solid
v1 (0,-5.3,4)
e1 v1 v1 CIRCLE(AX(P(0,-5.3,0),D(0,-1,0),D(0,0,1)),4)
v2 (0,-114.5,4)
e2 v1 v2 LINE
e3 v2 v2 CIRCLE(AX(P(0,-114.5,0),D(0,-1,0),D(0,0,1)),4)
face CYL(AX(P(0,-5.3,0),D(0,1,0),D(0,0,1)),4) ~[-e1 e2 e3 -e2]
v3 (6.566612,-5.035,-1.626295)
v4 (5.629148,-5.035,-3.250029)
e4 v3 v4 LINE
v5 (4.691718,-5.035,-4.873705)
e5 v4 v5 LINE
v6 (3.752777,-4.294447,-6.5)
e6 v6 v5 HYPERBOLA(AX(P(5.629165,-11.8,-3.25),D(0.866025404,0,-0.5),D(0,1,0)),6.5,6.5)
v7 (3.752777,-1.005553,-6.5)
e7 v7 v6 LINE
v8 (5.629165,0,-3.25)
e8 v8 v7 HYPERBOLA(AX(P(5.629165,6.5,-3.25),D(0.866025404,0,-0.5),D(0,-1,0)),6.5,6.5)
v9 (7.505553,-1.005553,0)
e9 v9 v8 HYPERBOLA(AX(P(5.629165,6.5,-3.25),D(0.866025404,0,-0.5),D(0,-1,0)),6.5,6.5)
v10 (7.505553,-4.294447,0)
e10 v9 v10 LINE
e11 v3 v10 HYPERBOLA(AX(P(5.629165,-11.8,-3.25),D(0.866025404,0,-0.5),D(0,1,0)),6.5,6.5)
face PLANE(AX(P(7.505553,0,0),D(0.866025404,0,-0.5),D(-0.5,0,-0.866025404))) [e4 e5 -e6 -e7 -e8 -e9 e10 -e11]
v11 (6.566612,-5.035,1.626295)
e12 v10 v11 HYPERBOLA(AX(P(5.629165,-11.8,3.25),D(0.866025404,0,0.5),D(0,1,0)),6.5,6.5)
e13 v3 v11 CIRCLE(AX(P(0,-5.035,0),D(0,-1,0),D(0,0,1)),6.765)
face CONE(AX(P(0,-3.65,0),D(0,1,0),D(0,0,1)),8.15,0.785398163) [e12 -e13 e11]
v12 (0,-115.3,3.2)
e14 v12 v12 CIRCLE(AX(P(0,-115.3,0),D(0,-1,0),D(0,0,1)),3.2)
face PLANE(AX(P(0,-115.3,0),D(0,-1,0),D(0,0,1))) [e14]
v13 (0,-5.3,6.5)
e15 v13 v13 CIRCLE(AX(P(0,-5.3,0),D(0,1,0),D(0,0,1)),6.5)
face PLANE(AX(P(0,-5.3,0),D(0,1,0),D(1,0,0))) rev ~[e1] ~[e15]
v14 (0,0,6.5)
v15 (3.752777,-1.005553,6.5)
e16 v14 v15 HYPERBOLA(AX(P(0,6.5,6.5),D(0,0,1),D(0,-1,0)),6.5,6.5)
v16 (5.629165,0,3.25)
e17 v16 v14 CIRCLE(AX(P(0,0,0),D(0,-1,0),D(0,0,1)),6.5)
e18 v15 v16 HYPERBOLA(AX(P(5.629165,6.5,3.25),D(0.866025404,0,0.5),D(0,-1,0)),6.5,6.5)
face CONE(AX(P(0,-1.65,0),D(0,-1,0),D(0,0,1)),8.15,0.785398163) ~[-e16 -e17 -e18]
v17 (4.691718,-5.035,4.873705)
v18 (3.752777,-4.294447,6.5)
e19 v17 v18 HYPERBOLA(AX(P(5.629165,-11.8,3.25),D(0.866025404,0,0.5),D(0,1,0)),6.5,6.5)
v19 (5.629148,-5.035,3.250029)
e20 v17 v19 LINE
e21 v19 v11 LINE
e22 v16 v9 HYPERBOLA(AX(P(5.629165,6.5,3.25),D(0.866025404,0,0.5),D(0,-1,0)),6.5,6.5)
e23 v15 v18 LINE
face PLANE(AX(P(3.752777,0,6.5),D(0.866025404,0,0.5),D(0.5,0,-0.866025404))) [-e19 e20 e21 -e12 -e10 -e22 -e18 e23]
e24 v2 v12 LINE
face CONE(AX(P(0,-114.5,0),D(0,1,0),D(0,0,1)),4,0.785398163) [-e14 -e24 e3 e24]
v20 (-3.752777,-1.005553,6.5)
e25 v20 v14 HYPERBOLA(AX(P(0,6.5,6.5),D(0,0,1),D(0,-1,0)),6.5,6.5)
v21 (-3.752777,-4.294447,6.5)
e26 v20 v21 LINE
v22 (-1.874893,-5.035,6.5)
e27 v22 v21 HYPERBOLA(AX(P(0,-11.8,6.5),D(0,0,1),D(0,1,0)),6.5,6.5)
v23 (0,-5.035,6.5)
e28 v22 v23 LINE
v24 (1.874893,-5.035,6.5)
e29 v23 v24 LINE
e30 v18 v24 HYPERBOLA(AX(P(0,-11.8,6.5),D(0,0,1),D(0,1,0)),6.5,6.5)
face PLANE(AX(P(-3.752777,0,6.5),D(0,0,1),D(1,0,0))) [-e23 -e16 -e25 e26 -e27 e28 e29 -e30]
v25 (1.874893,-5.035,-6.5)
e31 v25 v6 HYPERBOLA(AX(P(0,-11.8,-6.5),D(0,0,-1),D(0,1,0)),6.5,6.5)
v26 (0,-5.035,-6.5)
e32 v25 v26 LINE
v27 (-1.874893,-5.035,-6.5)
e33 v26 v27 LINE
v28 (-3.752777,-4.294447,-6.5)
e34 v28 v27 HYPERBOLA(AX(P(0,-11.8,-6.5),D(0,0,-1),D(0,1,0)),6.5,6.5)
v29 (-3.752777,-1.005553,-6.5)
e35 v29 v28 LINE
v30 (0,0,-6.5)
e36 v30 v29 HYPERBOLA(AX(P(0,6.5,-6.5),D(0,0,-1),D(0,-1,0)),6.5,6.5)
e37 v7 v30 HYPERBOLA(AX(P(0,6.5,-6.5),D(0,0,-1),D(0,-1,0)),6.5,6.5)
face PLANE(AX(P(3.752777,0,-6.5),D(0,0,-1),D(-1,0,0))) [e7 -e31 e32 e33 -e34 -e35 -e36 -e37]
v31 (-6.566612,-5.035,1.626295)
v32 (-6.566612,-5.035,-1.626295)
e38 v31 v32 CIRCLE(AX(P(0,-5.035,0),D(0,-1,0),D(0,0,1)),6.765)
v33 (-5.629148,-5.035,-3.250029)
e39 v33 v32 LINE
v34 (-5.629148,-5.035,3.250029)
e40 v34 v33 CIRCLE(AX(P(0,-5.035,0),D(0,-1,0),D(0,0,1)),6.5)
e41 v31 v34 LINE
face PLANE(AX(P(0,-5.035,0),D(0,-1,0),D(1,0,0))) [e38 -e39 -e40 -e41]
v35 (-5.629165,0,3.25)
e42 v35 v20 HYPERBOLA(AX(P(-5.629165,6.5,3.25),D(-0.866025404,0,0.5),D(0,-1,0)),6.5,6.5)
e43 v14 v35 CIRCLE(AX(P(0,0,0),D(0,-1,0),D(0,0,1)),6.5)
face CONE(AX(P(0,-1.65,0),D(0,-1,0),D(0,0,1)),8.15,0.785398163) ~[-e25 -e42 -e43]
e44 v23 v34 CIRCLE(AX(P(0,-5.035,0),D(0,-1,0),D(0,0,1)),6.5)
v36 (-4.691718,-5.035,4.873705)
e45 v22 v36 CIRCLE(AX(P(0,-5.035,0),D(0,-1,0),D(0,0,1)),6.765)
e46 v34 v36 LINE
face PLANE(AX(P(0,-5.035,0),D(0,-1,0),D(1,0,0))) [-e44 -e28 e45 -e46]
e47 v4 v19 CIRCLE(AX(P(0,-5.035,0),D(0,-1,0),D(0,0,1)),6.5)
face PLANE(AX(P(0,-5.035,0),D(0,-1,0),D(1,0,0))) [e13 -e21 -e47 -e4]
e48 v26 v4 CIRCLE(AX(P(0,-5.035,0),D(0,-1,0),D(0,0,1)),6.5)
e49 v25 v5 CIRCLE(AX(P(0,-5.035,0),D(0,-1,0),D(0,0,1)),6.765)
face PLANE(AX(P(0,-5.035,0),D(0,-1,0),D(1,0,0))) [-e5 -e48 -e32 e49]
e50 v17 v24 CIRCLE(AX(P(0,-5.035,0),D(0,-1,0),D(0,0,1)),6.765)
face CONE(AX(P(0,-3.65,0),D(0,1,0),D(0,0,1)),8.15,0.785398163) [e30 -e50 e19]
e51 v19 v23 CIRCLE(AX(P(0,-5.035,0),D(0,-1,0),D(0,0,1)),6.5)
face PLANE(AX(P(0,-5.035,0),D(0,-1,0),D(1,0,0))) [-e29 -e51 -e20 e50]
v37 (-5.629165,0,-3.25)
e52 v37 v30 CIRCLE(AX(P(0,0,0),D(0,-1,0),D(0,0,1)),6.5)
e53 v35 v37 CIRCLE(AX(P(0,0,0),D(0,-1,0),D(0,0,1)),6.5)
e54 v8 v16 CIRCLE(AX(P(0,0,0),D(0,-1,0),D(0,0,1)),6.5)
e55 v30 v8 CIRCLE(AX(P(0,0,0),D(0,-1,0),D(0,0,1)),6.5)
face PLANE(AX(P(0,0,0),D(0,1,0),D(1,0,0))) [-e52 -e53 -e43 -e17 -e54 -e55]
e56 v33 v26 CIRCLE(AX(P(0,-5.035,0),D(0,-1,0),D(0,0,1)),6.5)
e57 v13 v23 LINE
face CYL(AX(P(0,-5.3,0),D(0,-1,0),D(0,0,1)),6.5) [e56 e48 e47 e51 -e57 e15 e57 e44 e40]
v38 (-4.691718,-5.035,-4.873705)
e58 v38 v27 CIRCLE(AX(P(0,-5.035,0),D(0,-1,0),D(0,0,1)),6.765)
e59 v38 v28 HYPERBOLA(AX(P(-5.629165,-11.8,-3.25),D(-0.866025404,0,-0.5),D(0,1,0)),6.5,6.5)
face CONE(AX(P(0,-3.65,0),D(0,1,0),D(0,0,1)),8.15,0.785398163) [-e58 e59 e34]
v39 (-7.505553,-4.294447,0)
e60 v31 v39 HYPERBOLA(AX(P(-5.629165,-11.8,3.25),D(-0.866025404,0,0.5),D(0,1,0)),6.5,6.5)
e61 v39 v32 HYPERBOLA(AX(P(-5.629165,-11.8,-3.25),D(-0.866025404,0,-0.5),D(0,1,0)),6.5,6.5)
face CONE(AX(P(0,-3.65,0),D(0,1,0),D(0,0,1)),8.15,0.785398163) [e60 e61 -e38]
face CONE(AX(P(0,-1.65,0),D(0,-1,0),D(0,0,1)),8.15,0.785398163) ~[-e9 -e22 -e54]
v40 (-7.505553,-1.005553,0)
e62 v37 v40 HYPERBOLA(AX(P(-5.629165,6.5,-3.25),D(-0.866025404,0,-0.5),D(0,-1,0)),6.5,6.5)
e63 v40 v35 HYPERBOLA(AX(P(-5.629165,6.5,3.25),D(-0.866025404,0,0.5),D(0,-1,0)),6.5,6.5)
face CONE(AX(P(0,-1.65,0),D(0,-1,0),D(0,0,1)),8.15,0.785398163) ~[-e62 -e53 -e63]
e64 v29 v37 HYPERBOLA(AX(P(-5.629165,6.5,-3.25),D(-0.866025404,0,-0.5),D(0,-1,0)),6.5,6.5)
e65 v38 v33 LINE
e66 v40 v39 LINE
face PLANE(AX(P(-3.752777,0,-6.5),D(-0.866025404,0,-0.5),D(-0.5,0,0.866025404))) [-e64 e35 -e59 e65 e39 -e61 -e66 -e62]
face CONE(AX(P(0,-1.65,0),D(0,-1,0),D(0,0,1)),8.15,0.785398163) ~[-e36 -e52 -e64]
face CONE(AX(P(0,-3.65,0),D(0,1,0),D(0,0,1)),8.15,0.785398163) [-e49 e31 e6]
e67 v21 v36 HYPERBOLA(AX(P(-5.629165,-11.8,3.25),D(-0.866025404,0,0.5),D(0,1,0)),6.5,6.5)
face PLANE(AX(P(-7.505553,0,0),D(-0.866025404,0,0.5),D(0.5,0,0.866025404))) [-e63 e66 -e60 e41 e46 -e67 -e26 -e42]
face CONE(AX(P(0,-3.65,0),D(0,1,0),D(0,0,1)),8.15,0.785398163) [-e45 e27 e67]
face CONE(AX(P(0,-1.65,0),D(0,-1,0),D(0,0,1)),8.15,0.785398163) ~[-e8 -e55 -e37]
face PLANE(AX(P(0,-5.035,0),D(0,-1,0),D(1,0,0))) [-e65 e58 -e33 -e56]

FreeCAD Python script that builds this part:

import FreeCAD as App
import Part
import Sketcher
Q = App.Units.Quantity


def edges_at(feature, points):
    """Names of the edges that pass closest to the given points."""
    edges = feature.Shape.Edges
    near = lambda p: min(range(len(edges)), key=lambda i: edges[i].distToShape(Part.Vertex(*p))[0])
    return sorted({f"Edge{near(p) + 1}" for p in points})

doc = App.newDocument("Part")
body = doc.addObject("PartDesign::Body", "Body")

sketch1 = body.newObject("Sketcher::SketchObject", "Sketch")
sketch1.AttachmentSupport = (doc.getObject("XZ_Plane"), [""])
sketch1.MapMode = "FlatFace"
sketch1.addGeometry([
    Part.LineSegment(App.Vector(8, 0, 0), App.Vector(4, -6, 0)),
    Part.LineSegment(App.Vector(4, -6, 0), App.Vector(-4, -6, 0)),
    Part.LineSegment(App.Vector(-4, -6, 0), App.Vector(-8, 0, 0)),
    Part.LineSegment(App.Vector(-8, 0, 0), App.Vector(-4, 6, 0)),
    Part.LineSegment(App.Vector(-4, 6, 0), App.Vector(4, 6, 0)),
    Part.LineSegment(App.Vector(4, 6, 0), App.Vector(8, 0, 0)),
], False)
sketch1.addConstraint([
    Sketcher.Constraint("Coincident", 0, 2, 1, 1),
    Sketcher.Constraint("Coincident", 1, 2, 2, 1),
    Sketcher.Constraint("Coincident", 2, 2, 3, 1),
    Sketcher.Constraint("Coincident", 3, 2, 4, 1),
    Sketcher.Constraint("Coincident", 4, 2, 5, 1),
    Sketcher.Constraint("Coincident", 5, 2, 0, 1),
    Sketcher.Constraint("Horizontal", 1),
    Sketcher.Constraint("Horizontal", 4),
    Sketcher.Constraint("Symmetric", 0, 2, 3, 2, -1, 1),
    Sketcher.Constraint("Symmetric", 2, 2, 5, 2, -1, 1),
    Sketcher.Constraint("PointOnObject", 2, 2, -1),
    Sketcher.Constraint("Parallel", 2, 5),
    Sketcher.Constraint("Vertical", 1, 2, 3, 2),
    Sketcher.Constraint("Angle", 0, Q("-120 deg")),
    Sketcher.Constraint("DistanceY", 1, 2, 3, 2, Q("13 mm")),
    Sketcher.Constraint("DistanceX", 1, 2, 1, 1, Q("7.505554 mm")),
])
pad1 = body.newObject("PartDesign::Pad", "Pad")
pad1.Profile = sketch1
pad1.Length = 5.3

sketch2 = body.newObject("Sketcher::SketchObject", "Sketch001")
sketch2.AttachmentSupport = (doc.getObject("YZ_Plane"), [""])
sketch2.MapMode = "FlatFace"
sketch2.addGeometry([
    Part.LineSegment(App.Vector(0, 6.5, 0), App.Vector(0, 8.2, 0)),
    Part.LineSegment(App.Vector(0, 8.2, 0), App.Vector(-1.6, 8.2, 0)),
    Part.LineSegment(App.Vector(-1.6, 8.2, 0), App.Vector(0, 6.5, 0)),
    Part.LineSegment(App.Vector(-5.3, 6.5, 0), App.Vector(-3.6, 8.2, 0)),
    Part.LineSegment(App.Vector(-3.6, 8.2, 0), App.Vector(-5.3, 8.2, 0)),
    Part.LineSegment(App.Vector(-5.3, 8.2, 0), App.Vector(-5.3, 6.5, 0)),
], False)
sketch2.addConstraint([
    Sketcher.Constraint("Coincident", 0, 2, 1, 1),
    Sketcher.Constraint("Coincident", 1, 2, 2, 1),
    Sketcher.Constraint("Coincident", 2, 2, 0, 1),
    Sketcher.Constraint("Coincident", 3, 2, 4, 1),
    Sketcher.Constraint("Coincident", 4, 2, 5, 1),
    Sketcher.Constraint("Coincident", 5, 2, 3, 1),
    Sketcher.Constraint("Vertical", 0),
    Sketcher.Constraint("Horizontal", 1),
    Sketcher.Constraint("Horizontal", 4),
    Sketcher.Constraint("Vertical", 5),
    Sketcher.Constraint("PointOnObject", 0, 2, -2),
    Sketcher.Constraint("Perpendicular", 2, 3),
    Sketcher.Constraint("Horizontal", 1, 2, 3, 2),
    Sketcher.Constraint("Horizontal", 2, 2, 5, 2),
    Sketcher.Constraint("Equal", 1, 4),
    Sketcher.Constraint("DistanceX", 3, 2, 1, 2, Q("2 mm")),
    Sketcher.Constraint("DistanceX", 1, 2, 1, 1, Q("1.65 mm")),
    Sketcher.Constraint("DistanceY", -1, 1, 2, 2, Q("6.5 mm")),
])
groove = body.newObject("PartDesign::Groove", "Groove")
groove.Profile = sketch2
groove.ReferenceAxis = (sketch2, ["H_Axis"])
groove.Angle = 360

sketch3 = body.newObject("Sketcher::SketchObject", "Sketch002")
sketch3.AttachmentSupport = (doc.getObject("XZ_Plane"), [""])
sketch3.MapMode = "FlatFace"
sketch3.AttachmentOffset = App.Placement(App.Vector(0, 0, 5.3), App.Rotation())
sketch3.addGeometry([
    Part.LineSegment(App.Vector(-11, 10, 0), App.Vector(-11, -10, 0)),
    Part.LineSegment(App.Vector(-11, -10, 0), App.Vector(11, -10, 0)),
    Part.LineSegment(App.Vector(11, -10, 0), App.Vector(11, 10, 0)),
    Part.LineSegment(App.Vector(11, 10, 0), App.Vector(-11, 10, 0)),
    Part.Circle(App.Vector(0, 0, 0), App.Vector(0, 0, 1), 6),
], False)
sketch3.addConstraint([
    Sketcher.Constraint("Coincident", 0, 2, 1, 1),
    Sketcher.Constraint("Coincident", 1, 2, 2, 1),
    Sketcher.Constraint("Coincident", 2, 2, 3, 1),
    Sketcher.Constraint("Coincident", 3, 2, 0, 1),
    Sketcher.Constraint("Vertical", 0),
    Sketcher.Constraint("Horizontal", 1),
    Sketcher.Constraint("Vertical", 2),
    Sketcher.Constraint("Horizontal", 3),
    Sketcher.Constraint("Coincident", 4, 3, -1, 1),
    Sketcher.Constraint("Symmetric", 0, 2, 2, 2, -1, 1),
    Sketcher.Constraint("Diameter", 4, Q("13 mm")),
    Sketcher.Constraint("DistanceY", 0, 2, 0, 1, Q("19.11 mm")),
    Sketcher.Constraint("DistanceX", 1, 1, 1, 2, Q("21.122 mm")),
])
pocket1 = body.newObject("PartDesign::Pocket", "Pocket")
pocket1.Profile = sketch3
pocket1.Length = 0.265

sketch4 = body.newObject("Sketcher::SketchObject", "Sketch003")
sketch4.AttachmentSupport = (doc.getObject("XZ_Plane"), [""])
sketch4.MapMode = "FlatFace"
sketch4.AttachmentOffset = App.Placement(App.Vector(0, 0, 5.3), App.Rotation())
sketch4.addGeometry(Part.Circle(App.Vector(0, 0, 0), App.Vector(0, 0, 1), 4), False)
sketch4.addConstraint([
    Sketcher.Constraint("Coincident", 0, 3, -1, 1),
    Sketcher.Constraint("Diameter", 0, Q("8 mm")),
])
pad2 = body.newObject("PartDesign::Pad", "Pad001")
pad2.Profile = sketch4
pad2.Length = 110
doc.recompute()

chamfer = body.newObject("PartDesign::Chamfer", "Chamfer")
chamfer.Base = (pad2, edges_at(pad2, [(0, -115.3, -4)]))
chamfer.Size = 0.8

doc.recompute()
